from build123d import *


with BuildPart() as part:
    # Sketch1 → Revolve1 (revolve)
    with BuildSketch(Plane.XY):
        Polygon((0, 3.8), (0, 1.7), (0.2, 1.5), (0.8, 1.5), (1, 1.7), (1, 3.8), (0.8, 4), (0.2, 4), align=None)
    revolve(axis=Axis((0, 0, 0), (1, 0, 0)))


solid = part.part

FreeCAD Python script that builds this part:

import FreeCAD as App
import Part
import Sketcher
from FreeCAD import Vector
Q = App.Units.Quantity

doc = App.newDocument("Part")
params = doc.addObject("Spreadsheet::Sheet", "Params")
for row, (alias, value) in enumerate([
    ("sketch1_width", "0.6 mm"),
    ("sketch1_height", "2.1 mm"),
    ("revolution_angle", "360 deg"),
], start=1):
    params.set(f"A{row}", alias)
    params.set(f"B{row}", "=" + value)
    params.setAlias(f"B{row}", alias)

body = doc.addObject("PartDesign::Body", "Body")

# Sketch on XY plane
sketch1 = body.newObject("Sketcher::SketchObject", "Sketch")
sketch1.AttachmentSupport = (doc.getObject("XY_Plane"), [""])
sketch1.MapMode = "FlatFace"
sketch1.addGeometry([
    Part.LineSegment(Vector(0, 3.8, 0), Vector(0, 1.7, 0)),  # 0
    Part.LineSegment(Vector(0, 1.7, 0), Vector(0.2, 1.5, 0)),  # 1
    Part.LineSegment(Vector(0.2, 1.5, 0), Vector(0.8, 1.5, 0)),  # 2
    Part.LineSegment(Vector(0.8, 1.5, 0), Vector(1, 1.7, 0)),  # 3
    Part.LineSegment(Vector(1, 1.7, 0), Vector(1, 3.8, 0)),  # 4
    Part.LineSegment(Vector(1, 3.8, 0), Vector(0.8, 4, 0)),  # 5
    Part.LineSegment(Vector(0.8, 4, 0), Vector(0.2, 4, 0)),  # 6
    Part.LineSegment(Vector(0.2, 4, 0), Vector(0, 3.8, 0)),  # 7
], False)
sketch1.addConstraint([
    Sketcher.Constraint("Coincident", 0, 2, 1, 1),
    Sketcher.Constraint("Coincident", 1, 2, 2, 1),
    Sketcher.Constraint("Coincident", 2, 2, 3, 1),
    Sketcher.Constraint("Coincident", 3, 2, 4, 1),
    Sketcher.Constraint("Coincident", 4, 2, 5, 1),
    Sketcher.Constraint("Coincident", 5, 2, 6, 1),
    Sketcher.Constraint("Coincident", 6, 2, 7, 1),
    Sketcher.Constraint("Coincident", 7, 2, 0, 1),
    Sketcher.Constraint("Vertical", 0),
    Sketcher.Constraint("Horizontal", 2),
    Sketcher.Constraint("Vertical", 4),
    Sketcher.Constraint("Horizontal", 6),
    Sketcher.Constraint("PointOnObject", 0, 2, -2),
    Sketcher.Constraint("Perpendicular", 1, 3),
    Sketcher.Constraint("Perpendicular", 3, 5),
    Sketcher.Constraint("Perpendicular", 5, 7),
    Sketcher.Constraint("Horizontal", 0, 2, 3, 2),
    Sketcher.Constraint("Horizontal", 4, 2, 7, 2),
    Sketcher.Constraint("Vertical", 2, 2, 5, 2),
    Sketcher.Constraint("Vertical", 1, 2, 6, 2),
    Sketcher.Constraint("DistanceX", 2, 1, 2, 2, Q("0.6 mm")),
    Sketcher.Constraint("DistanceY", 0, 2, 0, 1, Q("2.1 mm")),
    Sketcher.Constraint("DistanceX", -1, 1, 3, 2, Q("1 mm")),
    Sketcher.Constraint("DistanceY", -1, 1, 5, 2, Q("4 mm")),
])
sketch1.setExpression("Constraints[20]", "Params.sketch1_width")
sketch1.setExpression("Constraints[21]", "Params.sketch1_height")
revolution = body.newObject("PartDesign::Revolution", "Revolution")
revolution.Profile = sketch1
revolution.ReferenceAxis = (sketch1, ["H_Axis"])
revolution.setExpression("Angle", "Params.revolution_angle")

doc.recompute()
